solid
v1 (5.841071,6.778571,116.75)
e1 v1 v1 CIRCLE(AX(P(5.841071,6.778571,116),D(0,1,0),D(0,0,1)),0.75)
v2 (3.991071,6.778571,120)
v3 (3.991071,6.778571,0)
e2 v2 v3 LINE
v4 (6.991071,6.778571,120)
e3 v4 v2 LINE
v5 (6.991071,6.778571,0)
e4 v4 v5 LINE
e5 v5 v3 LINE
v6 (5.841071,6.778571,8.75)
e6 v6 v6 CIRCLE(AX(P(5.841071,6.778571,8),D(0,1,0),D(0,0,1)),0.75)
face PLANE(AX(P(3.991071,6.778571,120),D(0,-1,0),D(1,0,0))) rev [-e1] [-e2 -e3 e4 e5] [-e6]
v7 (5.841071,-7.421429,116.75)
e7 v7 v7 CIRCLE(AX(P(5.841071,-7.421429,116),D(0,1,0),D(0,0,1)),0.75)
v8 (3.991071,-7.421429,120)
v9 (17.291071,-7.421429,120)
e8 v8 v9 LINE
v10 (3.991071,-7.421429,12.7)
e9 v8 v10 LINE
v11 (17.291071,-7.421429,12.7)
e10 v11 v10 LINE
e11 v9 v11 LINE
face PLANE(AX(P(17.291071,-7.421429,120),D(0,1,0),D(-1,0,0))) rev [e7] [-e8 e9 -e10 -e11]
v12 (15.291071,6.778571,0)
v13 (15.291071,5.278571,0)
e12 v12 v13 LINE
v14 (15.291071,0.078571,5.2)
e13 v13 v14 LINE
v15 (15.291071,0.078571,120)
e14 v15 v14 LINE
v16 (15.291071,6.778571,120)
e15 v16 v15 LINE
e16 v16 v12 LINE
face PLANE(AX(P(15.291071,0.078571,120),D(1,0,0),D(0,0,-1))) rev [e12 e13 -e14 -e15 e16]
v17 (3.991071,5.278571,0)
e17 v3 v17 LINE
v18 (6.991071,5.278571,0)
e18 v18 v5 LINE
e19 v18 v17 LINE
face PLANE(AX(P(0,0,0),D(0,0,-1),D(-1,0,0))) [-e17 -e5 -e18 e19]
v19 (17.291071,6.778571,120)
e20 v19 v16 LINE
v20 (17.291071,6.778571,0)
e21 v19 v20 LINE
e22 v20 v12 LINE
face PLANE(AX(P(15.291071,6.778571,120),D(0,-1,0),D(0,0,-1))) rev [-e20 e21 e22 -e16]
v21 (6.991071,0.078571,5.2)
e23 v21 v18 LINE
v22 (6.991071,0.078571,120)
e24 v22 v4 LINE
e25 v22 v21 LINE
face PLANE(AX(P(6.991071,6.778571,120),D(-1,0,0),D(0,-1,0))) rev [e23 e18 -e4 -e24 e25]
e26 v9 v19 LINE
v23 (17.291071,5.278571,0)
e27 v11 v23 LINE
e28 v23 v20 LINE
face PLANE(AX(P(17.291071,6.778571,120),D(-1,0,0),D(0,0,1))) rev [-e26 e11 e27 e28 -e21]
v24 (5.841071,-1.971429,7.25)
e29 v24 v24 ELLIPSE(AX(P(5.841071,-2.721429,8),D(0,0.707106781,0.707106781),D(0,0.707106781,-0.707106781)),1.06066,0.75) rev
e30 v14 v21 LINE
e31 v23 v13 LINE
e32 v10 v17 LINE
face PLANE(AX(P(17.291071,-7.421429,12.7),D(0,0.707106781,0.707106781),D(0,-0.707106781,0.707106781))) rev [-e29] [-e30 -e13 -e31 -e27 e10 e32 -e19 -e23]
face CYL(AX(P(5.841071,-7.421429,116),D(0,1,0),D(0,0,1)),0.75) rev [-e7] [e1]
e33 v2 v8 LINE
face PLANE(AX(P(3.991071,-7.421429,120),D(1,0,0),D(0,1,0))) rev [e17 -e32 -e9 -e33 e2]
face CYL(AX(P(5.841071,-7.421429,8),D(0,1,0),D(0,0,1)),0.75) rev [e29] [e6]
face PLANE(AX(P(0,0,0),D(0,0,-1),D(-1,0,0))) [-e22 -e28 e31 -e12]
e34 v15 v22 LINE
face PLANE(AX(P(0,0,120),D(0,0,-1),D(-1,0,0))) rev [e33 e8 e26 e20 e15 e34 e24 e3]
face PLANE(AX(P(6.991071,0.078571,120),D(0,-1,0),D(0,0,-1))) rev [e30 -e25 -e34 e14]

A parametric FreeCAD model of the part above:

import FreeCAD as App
import Part
import Sketcher
Q = App.Units.Quantity

doc = App.newDocument("Part")
body = doc.addObject("PartDesign::Body", "Body")

# Sketch on XY plane
sketch1 = body.newObject("Sketcher::SketchObject", "Sketch")
sketch1.AttachmentSupport = (doc.getObject("XY_Plane"), [""])
sketch1.MapMode = "FlatFace"
sketch1.addGeometry(Part.LineSegment(App.Vector(7, 6.8, 0), App.Vector(4, 6.8, 0)), False)
sketch1.addGeometry(Part.LineSegment(App.Vector(4, 6.8, 0), App.Vector(4, -7.4, 0)), False)
sketch1.addGeometry(Part.LineSegment(App.Vector(4, -7.4, 0), App.Vector(17.3, -7.4, 0)), False)
sketch1.addGeometry(Part.LineSegment(App.Vector(17.3, -7.4, 0), App.Vector(17.3, 6.8, 0)), False)
sketch1.addGeometry(Part.LineSegment(App.Vector(17.3, 6.8, 0), App.Vector(15.3, 6.8, 0)), False)
sketch1.addGeometry(Part.LineSegment(App.Vector(15.3, 6.8, 0), App.Vector(15.3, 0.1, 0)), False)
sketch1.addGeometry(Part.LineSegment(App.Vector(15.3, 0.1, 0), App.Vector(7, 0.1, 0)), False)
sketch1.addGeometry(Part.LineSegment(App.Vector(7, 0.1, 0), App.Vector(7, 6.8, 0)), False)
sketch1.addConstraint(Sketcher.Constraint("Coincident", 0, 2, 1, 1))
sketch1.addConstraint(Sketcher.Constraint("Coincident", 1, 2, 2, 1))
sketch1.addConstraint(Sketcher.Constraint("Coincident", 2, 2, 3, 1))
sketch1.addConstraint(Sketcher.Constraint("Coincident", 3, 2, 4, 1))
sketch1.addConstraint(Sketcher.Constraint("Coincident", 4, 2, 5, 1))
sketch1.addConstraint(Sketcher.Constraint("Coincident", 5, 2, 6, 1))
sketch1.addConstraint(Sketcher.Constraint("Coincident", 6, 2, 7, 1))
sketch1.addConstraint(Sketcher.Constraint("Coincident", 7, 2, 0, 1))
sketch1.addConstraint(Sketcher.Constraint("Horizontal", 0))
sketch1.addConstraint(Sketcher.Constraint("Vertical", 1))
sketch1.addConstraint(Sketcher.Constraint("Horizontal", 2))
sketch1.addConstraint(Sketcher.Constraint("Vertical", 3))
sketch1.addConstraint(Sketcher.Constraint("Horizontal", 4))
sketch1.addConstraint(Sketcher.Constraint("Vertical", 5))
sketch1.addConstraint(Sketcher.Constraint("Horizontal", 6))
sketch1.addConstraint(Sketcher.Constraint("Vertical", 7))
sketch1.addConstraint(Sketcher.Constraint("Horizontal", 0, 2, 3, 2))
sketch1.addConstraint(Sketcher.Constraint("DistanceX", 0, 2, 0, 1, Q("3 mm")))
sketch1.addConstraint(Sketcher.Constraint("DistanceX", 4, 2, 4, 1, Q("2 mm")))
sketch1.addConstraint(Sketcher.Constraint("DistanceX", 2, 1, 2, 2, Q("13.3 mm")))
sketch1.addConstraint(Sketcher.Constraint("DistanceY", 1, 2, 1, 1, Q("14.2 mm")))
sketch1.addConstraint(Sketcher.Constraint("DistanceY", 5, 2, 5, 1, Q("6.7 mm")))
sketch1.addConstraint(Sketcher.Constraint("DistanceX", -1, 1, 0, 2, Q("3.991071 mm")))
sketch1.addConstraint(Sketcher.Constraint("DistanceY", -1, 1, 0, 2, Q("6.778571 mm")))
pad1 = body.newObject("PartDesign::Pad", "Pad")
pad1.Profile = sketch1
pad1.Length = 120

# Sketch on XZ plane
sketch2 = body.newObject("Sketcher::SketchObject", "Sketch001")
sketch2.AttachmentSupport = (doc.getObject("XZ_Plane"), [""])
sketch2.MapMode = "FlatFace"
sketch2.AttachmentOffset = App.Placement(App.Vector(0, 0, -6.778571), App.Rotation())
sketch2.addGeometry(Part.Circle(App.Vector(5.8, 8, 0), App.Vector(0, 0, 1), 0.8), False)
sketch2.addConstraint(Sketcher.Constraint("Diameter", 0, Q("1.5 mm")))
sketch2.addConstraint(Sketcher.Constraint("DistanceY", -1, 1, 0, 3, Q("8 mm")))
sketch2.addConstraint(Sketcher.Constraint("DistanceX", -1, 1, 0, 3, Q("5.841071 mm")))
pocket1 = body.newObject("PartDesign::Pocket", "Pocket")
pocket1.Profile = sketch2
pocket1.Type = "ThroughAll"
pocket1.Reversed = True

# Sketch on XZ plane
sketch3 = body.newObject("Sketcher::SketchObject", "Sketch002")
sketch3.AttachmentSupport = (doc.getObject("XZ_Plane"), [""])
sketch3.MapMode = "FlatFace"
sketch3.AttachmentOffset = App.Placement(App.Vector(0, 0, -6.778571), App.Rotation())
sketch3.addGeometry(Part.Circle(App.Vector(5.8, 116, 0), App.Vector(0, 0, 1), 0.8), False)
sketch3.addConstraint(Sketcher.Constraint("Diameter", 0, Q("1.5 mm")))
sketch3.addConstraint(Sketcher.Constraint("DistanceY", -1, 1, 0, 3, Q("116 mm")))
sketch3.addConstraint(Sketcher.Constraint("DistanceX", -1, 1, 0, 3, Q("5.841071 mm")))
pocket2 = body.newObject("PartDesign::Pocket", "Pocket001")
pocket2.Profile = sketch3
pocket2.Type = "ThroughAll"
pocket2.Reversed = True

# Sketch on YZ plane
sketch4 = body.newObject("Sketcher::SketchObject", "Sketch003")
sketch4.AttachmentSupport = (doc.getObject("YZ_Plane"), [""])
sketch4.MapMode = "FlatFace"
sketch4.AttachmentOffset = App.Placement(App.Vector(0, 0, 3.991071), App.Rotation())
sketch4.addGeometry(Part.LineSegment(App.Vector(-7, 13, 0), App.Vector(5, 0, 0)), False)
sketch4.addGeometry(Part.LineSegment(App.Vector(5, 0, 0), App.Vector(-7, 0, 0)), False)
sketch4.addGeometry(Part.LineSegment(App.Vector(-7, 0, 0), App.Vector(-7, 13, 0)), False)
sketch4.addConstraint(Sketcher.Constraint("Coincident", 0, 2, 1, 1))
sketch4.addConstraint(Sketcher.Constraint("Coincident", 1, 2, 2, 1))
sketch4.addConstraint(Sketcher.Constraint("Coincident", 2, 2, 0, 1))
sketch4.addConstraint(Sketcher.Constraint("Horizontal", 1))
sketch4.addConstraint(Sketcher.Constraint("Vertical", 2))
sketch4.addConstraint(Sketcher.Constraint("PointOnObject", 0, 2, -1))
sketch4.addConstraint(Sketcher.Constraint("Equal", 1, 2))
sketch4.addConstraint(Sketcher.Constraint("DistanceX", 1, 2, 1, 1, Q("12.7 mm")))
sketch4.addConstraint(Sketcher.Constraint("DistanceX", -1, 1, 0, 2, Q("5.278571 mm")))
pocket3 = body.newObject("PartDesign::Pocket", "Pocket002")
pocket3.Profile = sketch4
pocket3.Type = "ThroughAll"
pocket3.Reversed = True

doc.recompute()
